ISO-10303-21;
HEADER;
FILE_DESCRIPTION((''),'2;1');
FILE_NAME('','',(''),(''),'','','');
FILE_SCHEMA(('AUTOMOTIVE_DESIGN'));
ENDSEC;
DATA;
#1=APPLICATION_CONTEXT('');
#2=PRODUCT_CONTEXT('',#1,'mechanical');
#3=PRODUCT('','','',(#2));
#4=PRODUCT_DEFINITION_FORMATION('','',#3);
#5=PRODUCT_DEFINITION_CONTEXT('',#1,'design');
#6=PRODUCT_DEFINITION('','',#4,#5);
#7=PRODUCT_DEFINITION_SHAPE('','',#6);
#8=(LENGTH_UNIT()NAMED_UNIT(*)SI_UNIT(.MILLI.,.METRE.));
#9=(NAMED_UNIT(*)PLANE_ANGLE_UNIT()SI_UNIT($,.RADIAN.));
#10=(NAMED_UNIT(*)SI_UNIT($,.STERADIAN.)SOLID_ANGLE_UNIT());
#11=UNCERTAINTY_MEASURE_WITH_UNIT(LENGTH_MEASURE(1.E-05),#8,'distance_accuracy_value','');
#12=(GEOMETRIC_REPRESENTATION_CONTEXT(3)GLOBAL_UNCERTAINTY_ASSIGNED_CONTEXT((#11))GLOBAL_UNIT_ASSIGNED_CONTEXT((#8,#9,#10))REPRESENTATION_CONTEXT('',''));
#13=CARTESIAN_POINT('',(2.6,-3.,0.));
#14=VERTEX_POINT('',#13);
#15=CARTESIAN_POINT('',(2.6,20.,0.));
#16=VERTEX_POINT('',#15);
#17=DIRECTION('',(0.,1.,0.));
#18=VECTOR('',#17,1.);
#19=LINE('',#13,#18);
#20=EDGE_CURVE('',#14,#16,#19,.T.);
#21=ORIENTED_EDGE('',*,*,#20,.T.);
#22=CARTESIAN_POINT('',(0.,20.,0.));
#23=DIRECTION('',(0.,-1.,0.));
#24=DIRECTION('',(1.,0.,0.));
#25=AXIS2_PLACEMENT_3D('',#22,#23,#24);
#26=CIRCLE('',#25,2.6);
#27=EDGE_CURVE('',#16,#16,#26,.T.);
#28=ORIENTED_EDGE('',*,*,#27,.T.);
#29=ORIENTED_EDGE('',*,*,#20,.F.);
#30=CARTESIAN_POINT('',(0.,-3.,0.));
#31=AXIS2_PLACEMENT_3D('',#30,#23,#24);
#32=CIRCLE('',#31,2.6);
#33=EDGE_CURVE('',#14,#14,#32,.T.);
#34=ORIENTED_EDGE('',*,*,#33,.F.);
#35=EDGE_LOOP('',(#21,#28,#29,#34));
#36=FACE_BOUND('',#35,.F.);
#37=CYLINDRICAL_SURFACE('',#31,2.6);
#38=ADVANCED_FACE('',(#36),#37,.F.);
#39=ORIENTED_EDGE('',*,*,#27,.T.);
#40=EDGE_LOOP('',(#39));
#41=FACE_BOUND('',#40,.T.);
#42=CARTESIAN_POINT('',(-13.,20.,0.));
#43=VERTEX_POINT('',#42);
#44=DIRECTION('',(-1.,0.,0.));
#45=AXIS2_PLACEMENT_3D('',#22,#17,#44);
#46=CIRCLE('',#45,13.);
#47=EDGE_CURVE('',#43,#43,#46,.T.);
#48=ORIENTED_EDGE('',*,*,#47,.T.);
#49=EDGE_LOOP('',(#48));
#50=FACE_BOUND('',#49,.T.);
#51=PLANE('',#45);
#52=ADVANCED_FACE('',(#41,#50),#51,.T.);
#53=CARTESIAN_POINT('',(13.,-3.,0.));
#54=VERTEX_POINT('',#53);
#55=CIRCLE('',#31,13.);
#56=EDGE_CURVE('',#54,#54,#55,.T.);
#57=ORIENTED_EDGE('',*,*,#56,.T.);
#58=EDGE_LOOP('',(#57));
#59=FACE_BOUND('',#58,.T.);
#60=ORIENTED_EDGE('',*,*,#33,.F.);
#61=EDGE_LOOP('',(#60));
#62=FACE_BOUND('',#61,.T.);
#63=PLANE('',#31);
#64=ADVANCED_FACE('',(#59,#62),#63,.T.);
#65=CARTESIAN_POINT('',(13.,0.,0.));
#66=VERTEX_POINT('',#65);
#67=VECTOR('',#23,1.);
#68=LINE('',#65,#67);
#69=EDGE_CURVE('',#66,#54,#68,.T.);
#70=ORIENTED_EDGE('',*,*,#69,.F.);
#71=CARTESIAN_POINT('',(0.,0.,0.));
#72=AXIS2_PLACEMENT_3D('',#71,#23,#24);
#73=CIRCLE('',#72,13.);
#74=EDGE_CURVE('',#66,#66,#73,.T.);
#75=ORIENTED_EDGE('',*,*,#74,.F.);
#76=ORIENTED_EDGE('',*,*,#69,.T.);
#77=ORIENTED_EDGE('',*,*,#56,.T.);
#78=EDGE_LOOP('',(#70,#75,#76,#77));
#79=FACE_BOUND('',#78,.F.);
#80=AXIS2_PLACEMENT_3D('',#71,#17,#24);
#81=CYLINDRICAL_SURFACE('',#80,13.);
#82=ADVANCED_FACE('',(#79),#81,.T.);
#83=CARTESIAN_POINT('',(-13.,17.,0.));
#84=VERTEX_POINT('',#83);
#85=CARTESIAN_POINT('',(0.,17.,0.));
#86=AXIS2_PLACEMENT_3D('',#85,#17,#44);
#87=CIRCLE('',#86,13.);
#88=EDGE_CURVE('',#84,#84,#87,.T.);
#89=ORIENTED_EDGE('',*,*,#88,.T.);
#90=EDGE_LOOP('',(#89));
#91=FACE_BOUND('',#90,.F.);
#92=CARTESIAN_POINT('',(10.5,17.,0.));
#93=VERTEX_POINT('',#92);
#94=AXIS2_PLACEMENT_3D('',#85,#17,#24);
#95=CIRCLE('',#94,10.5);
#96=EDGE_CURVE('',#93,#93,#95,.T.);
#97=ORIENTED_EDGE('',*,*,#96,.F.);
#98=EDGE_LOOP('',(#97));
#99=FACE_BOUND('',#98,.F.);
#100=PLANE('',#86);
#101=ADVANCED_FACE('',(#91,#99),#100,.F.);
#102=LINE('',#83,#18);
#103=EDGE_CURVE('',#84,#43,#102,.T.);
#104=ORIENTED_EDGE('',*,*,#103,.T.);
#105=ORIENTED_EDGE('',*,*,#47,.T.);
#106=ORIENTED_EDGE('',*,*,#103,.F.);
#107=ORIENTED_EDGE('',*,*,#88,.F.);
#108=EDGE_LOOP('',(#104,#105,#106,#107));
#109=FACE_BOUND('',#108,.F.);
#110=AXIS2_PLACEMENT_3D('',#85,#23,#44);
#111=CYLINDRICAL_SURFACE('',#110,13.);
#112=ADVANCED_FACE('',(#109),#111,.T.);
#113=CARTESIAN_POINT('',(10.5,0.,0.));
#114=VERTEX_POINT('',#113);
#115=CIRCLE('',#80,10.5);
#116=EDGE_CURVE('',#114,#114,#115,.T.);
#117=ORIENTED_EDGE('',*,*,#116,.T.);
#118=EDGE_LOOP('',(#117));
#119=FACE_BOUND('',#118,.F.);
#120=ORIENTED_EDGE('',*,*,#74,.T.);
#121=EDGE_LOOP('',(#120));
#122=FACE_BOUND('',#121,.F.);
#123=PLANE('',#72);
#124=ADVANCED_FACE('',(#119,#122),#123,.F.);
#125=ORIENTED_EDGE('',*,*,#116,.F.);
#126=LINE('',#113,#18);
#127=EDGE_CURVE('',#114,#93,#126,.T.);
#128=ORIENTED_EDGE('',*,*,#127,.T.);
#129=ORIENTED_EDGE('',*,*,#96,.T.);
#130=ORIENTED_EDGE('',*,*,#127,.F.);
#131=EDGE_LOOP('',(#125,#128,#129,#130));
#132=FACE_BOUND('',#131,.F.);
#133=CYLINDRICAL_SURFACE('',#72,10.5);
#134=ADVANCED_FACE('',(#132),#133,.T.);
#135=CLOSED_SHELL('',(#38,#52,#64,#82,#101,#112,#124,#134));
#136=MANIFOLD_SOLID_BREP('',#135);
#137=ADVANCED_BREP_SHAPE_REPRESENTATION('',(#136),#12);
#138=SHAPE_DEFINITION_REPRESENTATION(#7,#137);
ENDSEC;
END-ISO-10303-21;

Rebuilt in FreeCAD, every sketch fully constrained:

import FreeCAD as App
import Part
import Sketcher
from FreeCAD import Vector

doc = App.newDocument("Part")
body = doc.addObject("PartDesign::Body", "Body")

# Sketch on XZ plane
sketch1 = body.newObject("Sketcher::SketchObject", "Sketch")
sketch1.AttachmentSupport = (doc.getObject("XZ_Plane"), [""])
sketch1.MapMode = "FlatFace"
sketch1.addGeometry(Part.Circle(Vector(0, 0, 0), Vector(0, 0, 1), 10.5), False)
sketch1.addConstraint([
    Sketcher.Constraint("Coincident", 0, 3, -1, 1),
    Sketcher.Constraint("Diameter", 0, 21.0),
])
pad1 = body.newObject("PartDesign::Pad", "Pad")
pad1.Profile = sketch1
pad1.Length = 17
pad1.Reversed = True

# Sketch on XZ plane
sketch2 = body.newObject("Sketcher::SketchObject", "Sketch001")
sketch2.AttachmentSupport = (doc.getObject("XZ_Plane"), [""])
sketch2.MapMode = "FlatFace"
sketch2.addGeometry(Part.Circle(Vector(0, 0, 0), Vector(0, 0, 1), 13), False)
sketch2.addConstraint([
    Sketcher.Constraint("Coincident", 0, 3, -1, 1),
    Sketcher.Constraint("Diameter", 0, 26.0),
])
pad2 = body.newObject("PartDesign::Pad", "Pad001")
pad2.Profile = sketch2
pad2.Length = 3

# Sketch on XZ plane
sketch3 = body.newObject("Sketcher::SketchObject", "Sketch002")
sketch3.AttachmentSupport = (doc.getObject("XZ_Plane"), [""])
sketch3.MapMode = "FlatFace"
sketch3.AttachmentOffset = App.Placement(Vector(0, 0, -17), App.Rotation())
sketch3.addGeometry(Part.Circle(Vector(0, 0, 0), Vector(0, 0, 1), 13), False)
sketch3.addConstraint([
    Sketcher.Constraint("Coincident", 0, 3, -1, 1),
    Sketcher.Constraint("Diameter", 0, 26.0),
])
pad3 = body.newObject("PartDesign::Pad", "Pad002")
pad3.Profile = sketch3
pad3.Length = 3
pad3.Reversed = True

# Sketch on XZ plane
sketch4 = body.newObject("Sketcher::SketchObject", "Sketch003")
sketch4.AttachmentSupport = (doc.getObject("XZ_Plane"), [""])
sketch4.MapMode = "FlatFace"
sketch4.AttachmentOffset = App.Placement(Vector(0, 0, 3), App.Rotation())
sketch4.addGeometry(Part.Circle(Vector(0, 0, 0), Vector(0, 0, 1), 2.6), False)
sketch4.addConstraint([
    Sketcher.Constraint("Coincident", 0, 3, -1, 1),
    Sketcher.Constraint("Diameter", 0, 5.2),
])
pocket1 = body.newObject("PartDesign::Pocket", "Pocket")
pocket1.Profile = sketch4
pocket1.Length = 6

# Sketch on XZ plane
sketch5 = body.newObject("Sketcher::SketchObject", "Sketch004")
sketch5.AttachmentSupport = (doc.getObject("XZ_Plane"), [""])
sketch5.MapMode = "FlatFace"
sketch5.AttachmentOffset = App.Placement(Vector(0, 0, 3), App.Rotation())
sketch5.addGeometry(Part.Circle(Vector(0, 0, 0), Vector(0, 0, 1), 2.6), False)
sketch5.addConstraint([
    Sketcher.Constraint("Coincident", 0, 3, -1, 1),
    Sketcher.Constraint("Diameter", 0, 5.2),
])
pocket2 = body.newObject("PartDesign::Pocket", "Pocket001")
pocket2.Profile = sketch5
pocket2.Length = 23

doc.recompute()
